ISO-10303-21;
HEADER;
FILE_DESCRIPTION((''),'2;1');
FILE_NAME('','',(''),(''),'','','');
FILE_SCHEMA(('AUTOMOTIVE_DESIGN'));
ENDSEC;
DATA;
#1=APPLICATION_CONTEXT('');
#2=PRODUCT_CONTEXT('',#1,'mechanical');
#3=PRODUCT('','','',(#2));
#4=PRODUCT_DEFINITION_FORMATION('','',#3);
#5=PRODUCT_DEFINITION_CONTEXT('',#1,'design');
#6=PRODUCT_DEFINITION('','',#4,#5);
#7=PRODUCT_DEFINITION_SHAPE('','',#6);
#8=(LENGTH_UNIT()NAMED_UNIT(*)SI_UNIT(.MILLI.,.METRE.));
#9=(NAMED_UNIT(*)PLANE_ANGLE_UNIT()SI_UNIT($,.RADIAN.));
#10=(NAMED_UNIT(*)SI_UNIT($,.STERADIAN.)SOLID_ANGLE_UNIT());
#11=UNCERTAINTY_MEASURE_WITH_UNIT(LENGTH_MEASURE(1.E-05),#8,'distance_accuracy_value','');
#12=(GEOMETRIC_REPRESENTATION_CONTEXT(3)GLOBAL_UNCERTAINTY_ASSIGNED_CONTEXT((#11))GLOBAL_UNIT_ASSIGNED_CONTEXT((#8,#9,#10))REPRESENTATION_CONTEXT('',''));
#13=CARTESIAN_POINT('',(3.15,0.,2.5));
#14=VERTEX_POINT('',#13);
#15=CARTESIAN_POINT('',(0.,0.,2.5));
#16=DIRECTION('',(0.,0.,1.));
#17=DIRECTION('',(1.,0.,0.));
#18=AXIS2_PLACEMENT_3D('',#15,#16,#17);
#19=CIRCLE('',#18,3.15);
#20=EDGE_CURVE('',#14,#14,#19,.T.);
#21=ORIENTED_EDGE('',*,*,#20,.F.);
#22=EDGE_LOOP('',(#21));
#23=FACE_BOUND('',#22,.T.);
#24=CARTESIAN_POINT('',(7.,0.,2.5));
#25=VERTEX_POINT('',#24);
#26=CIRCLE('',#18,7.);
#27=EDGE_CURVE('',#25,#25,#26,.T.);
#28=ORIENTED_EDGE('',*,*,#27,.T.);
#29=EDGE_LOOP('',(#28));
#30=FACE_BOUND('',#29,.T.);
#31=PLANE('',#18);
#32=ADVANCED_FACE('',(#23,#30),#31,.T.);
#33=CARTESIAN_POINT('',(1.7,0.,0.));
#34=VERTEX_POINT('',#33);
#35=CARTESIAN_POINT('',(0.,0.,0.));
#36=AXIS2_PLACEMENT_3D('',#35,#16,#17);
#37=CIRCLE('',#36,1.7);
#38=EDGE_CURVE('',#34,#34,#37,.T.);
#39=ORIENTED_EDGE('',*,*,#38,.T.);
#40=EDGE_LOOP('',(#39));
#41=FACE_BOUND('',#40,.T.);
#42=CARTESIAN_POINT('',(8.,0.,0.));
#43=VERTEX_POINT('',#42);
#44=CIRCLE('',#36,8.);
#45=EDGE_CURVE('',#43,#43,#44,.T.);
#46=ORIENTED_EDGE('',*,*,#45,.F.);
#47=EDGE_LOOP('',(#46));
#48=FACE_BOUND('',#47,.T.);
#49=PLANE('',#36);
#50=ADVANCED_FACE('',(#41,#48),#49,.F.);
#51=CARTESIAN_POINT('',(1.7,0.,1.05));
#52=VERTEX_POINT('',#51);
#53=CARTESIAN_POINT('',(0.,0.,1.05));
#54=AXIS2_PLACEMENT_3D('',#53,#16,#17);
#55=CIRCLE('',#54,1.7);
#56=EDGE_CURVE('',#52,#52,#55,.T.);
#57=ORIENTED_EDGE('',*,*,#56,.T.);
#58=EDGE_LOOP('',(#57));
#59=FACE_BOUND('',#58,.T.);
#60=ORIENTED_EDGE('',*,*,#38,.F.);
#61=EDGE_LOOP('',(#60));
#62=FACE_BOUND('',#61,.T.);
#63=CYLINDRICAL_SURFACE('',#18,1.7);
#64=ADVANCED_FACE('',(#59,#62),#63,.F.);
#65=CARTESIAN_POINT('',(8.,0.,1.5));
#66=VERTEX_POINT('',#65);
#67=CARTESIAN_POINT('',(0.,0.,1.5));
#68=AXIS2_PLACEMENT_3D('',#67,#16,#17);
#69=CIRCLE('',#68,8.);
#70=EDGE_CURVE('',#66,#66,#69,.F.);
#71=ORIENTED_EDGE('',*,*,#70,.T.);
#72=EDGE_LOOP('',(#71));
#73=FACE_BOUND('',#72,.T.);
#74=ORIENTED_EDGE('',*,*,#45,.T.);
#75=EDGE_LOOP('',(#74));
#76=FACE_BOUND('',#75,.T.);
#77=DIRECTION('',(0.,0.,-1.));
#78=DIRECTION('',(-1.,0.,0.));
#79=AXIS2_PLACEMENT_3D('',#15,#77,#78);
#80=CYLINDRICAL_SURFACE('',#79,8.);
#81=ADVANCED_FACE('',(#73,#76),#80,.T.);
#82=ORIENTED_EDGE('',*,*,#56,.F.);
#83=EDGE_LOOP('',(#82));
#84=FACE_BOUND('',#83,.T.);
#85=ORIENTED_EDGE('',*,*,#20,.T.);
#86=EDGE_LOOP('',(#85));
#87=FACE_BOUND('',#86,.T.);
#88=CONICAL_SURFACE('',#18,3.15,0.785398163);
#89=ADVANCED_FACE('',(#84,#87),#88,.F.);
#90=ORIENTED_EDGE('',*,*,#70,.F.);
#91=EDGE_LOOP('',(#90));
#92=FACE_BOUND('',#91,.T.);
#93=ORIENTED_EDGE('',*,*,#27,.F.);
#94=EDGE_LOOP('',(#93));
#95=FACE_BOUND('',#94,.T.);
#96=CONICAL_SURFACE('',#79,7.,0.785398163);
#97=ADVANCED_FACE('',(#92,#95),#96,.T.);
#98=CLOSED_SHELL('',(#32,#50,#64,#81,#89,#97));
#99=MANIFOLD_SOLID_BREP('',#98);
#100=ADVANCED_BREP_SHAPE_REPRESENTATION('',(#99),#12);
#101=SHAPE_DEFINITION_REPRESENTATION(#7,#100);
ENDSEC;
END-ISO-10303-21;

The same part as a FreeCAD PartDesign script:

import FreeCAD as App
import Part
import Sketcher

V = App.Vector
Q = App.Units.Quantity


def edges_at(feature, points):
    """Names of the edges that pass closest to the given points."""
    edges = feature.Shape.Edges
    near = lambda p: min(range(len(edges)), key=lambda i: edges[i].distToShape(Part.Vertex(*p))[0])
    return sorted({f"Edge{near(p) + 1}" for p in points})

doc = App.newDocument("Part")
body = doc.addObject("PartDesign::Body", "Body")

# Sketch on XY plane
sketch1 = body.newObject("Sketcher::SketchObject", "Sketch")
sketch1.AttachmentSupport = (doc.getObject("XY_Plane"), [""])
sketch1.MapMode = "FlatFace"
sketch1.addGeometry(Part.Circle(V(0, 0, 0), V(0, 0, 1), 8), False)
sketch1.addConstraint([
    Sketcher.Constraint("Coincident", 0, 3, -1, 1),
    Sketcher.Constraint("Diameter", 0, 16.0),
])
pad1 = body.newObject("PartDesign::Pad", "Pad")
pad1.Profile = sketch1
pad1.Length = 2.5
doc.recompute()

chamfer = body.newObject("PartDesign::Chamfer", "Chamfer")
chamfer.Base = (pad1, edges_at(pad1, [(-8, 0, 2.5)]))
chamfer.Size = 1

# Sketch on YZ plane
sketch2 = body.newObject("Sketcher::SketchObject", "Sketch001")
sketch2.AttachmentSupport = (doc.getObject("YZ_Plane"), [""])
sketch2.MapMode = "FlatFace"
sketch2.addGeometry([
    Part.LineSegment(V(0, 0, 0), V(0, 2.5, 0)),  # 0
    Part.LineSegment(V(0, 2.5, 0), V(-3.1, 2.5, 0)),  # 1
    Part.LineSegment(V(-3.1, 2.5, 0), V(-1.7, 1.1, 0)),  # 2
    Part.LineSegment(V(-1.7, 1.1, 0), V(-1.7, 0, 0)),  # 3
    Part.LineSegment(V(-1.7, 0, 0), V(0, 0, 0)),  # 4
], False)
sketch2.addConstraint([
    Sketcher.Constraint("Coincident", 0, 2, 1, 1),
    Sketcher.Constraint("Coincident", 1, 2, 2, 1),
    Sketcher.Constraint("Coincident", 2, 2, 3, 1),
    Sketcher.Constraint("Coincident", 3, 2, 4, 1),
    Sketcher.Constraint("Coincident", 4, 2, 0, 1),
    Sketcher.Constraint("Vertical", 0),
    Sketcher.Constraint("Horizontal", 1),
    Sketcher.Constraint("Vertical", 3),
    Sketcher.Constraint("Horizontal", 4),
    Sketcher.Constraint("Coincident", 4, 2, -1, 1),
    Sketcher.Constraint("Angle", 2, Q("-45 deg")),
    Sketcher.Constraint("DistanceX", 4, 1, 4, 2, 1.7),
    Sketcher.Constraint("DistanceY", 0, 1, 0, 2, 2.5),
    Sketcher.Constraint("DistanceX", 1, 2, 1, 1, 3.15),
])
groove = body.newObject("PartDesign::Groove", "Groove")
groove.Profile = sketch2
groove.ReferenceAxis = (sketch2, ["V_Axis"])
groove.Angle = 360

doc.recompute()
